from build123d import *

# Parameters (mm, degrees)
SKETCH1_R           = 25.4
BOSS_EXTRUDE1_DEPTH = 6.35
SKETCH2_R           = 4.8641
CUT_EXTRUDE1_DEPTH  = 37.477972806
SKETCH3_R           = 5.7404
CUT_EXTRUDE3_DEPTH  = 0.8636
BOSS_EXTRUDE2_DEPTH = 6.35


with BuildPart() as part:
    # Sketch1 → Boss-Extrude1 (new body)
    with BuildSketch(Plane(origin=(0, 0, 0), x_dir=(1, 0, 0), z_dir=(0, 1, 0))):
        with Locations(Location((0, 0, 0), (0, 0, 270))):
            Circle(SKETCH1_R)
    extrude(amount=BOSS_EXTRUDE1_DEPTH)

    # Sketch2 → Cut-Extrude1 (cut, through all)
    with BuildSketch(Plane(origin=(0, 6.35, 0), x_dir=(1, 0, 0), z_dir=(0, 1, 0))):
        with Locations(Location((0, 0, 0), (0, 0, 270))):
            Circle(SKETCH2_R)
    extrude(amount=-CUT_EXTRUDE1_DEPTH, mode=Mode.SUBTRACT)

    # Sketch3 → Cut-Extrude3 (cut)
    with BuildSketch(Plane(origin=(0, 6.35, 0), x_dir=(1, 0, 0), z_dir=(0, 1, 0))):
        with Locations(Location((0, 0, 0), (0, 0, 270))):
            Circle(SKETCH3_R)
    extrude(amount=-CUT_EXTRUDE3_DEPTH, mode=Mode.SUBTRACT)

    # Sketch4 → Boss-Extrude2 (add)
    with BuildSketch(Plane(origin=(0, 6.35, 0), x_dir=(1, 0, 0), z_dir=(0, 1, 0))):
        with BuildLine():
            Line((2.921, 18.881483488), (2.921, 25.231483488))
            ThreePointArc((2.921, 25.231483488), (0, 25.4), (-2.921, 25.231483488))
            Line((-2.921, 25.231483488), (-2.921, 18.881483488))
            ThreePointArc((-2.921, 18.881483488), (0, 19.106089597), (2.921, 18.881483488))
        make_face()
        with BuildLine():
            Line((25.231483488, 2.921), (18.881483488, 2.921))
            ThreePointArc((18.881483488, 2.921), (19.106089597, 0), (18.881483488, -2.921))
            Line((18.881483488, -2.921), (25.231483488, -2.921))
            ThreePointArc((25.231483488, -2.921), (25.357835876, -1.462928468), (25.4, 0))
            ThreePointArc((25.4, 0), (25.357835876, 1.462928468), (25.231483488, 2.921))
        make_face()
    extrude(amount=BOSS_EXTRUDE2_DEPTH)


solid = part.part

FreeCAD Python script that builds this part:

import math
import FreeCAD as App
import Part
import Sketcher

V = App.Vector
Q = App.Units.Quantity

doc = App.newDocument("Part")
body = doc.addObject("PartDesign::Body", "Body")

# Sketch on XZ plane
sketch1 = body.newObject("Sketcher::SketchObject", "Sketch")
sketch1.AttachmentSupport = (doc.getObject("XZ_Plane"), [""])
sketch1.MapMode = "FlatFace"
sketch1.addGeometry(Part.Circle(V(0, 0, 0), V(0, 0, 1), 25), False)
sketch1.addConstraint(Sketcher.Constraint("Coincident", 0, 3, -1, 1))
sketch1.addConstraint(Sketcher.Constraint("Diameter", 0, Q("2 in")))
pad1 = body.newObject("PartDesign::Pad", "Pad")
pad1.Profile = sketch1
pad1.Length = Q("0.25 in")
pad1.Reversed = True

# Sketch on XZ plane
sketch2 = body.newObject("Sketcher::SketchObject", "Sketch001")
sketch2.AttachmentSupport = (doc.getObject("XZ_Plane"), [""])
sketch2.MapMode = "FlatFace"
sketch2.AttachmentOffset = App.Placement(V(0, 0, -0.25 * 25.4), App.Rotation())
sketch2.addGeometry(Part.Circle(V(0, 0, 0), V(0, 0, 1), 4.9), False)
sketch2.addConstraint(Sketcher.Constraint("Coincident", 0, 3, -1, 1))
sketch2.addConstraint(Sketcher.Constraint("Diameter", 0, Q("0.383 in")))
pocket1 = body.newObject("PartDesign::Pocket", "Pocket")
pocket1.Profile = sketch2
pocket1.Type = "ThroughAll"
pocket1.Reversed = True

# Sketch on XZ plane
sketch3 = body.newObject("Sketcher::SketchObject", "Sketch002")
sketch3.AttachmentSupport = (doc.getObject("XZ_Plane"), [""])
sketch3.MapMode = "FlatFace"
sketch3.AttachmentOffset = App.Placement(V(0, 0, -0.25 * 25.4), App.Rotation())
sketch3.addGeometry(Part.Circle(V(0, 0, 0), V(0, 0, 1), 6), False)
sketch3.addConstraint(Sketcher.Constraint("Coincident", 0, 3, -1, 1))
sketch3.addConstraint(Sketcher.Constraint("Diameter", 0, Q("0.452 in")))
pocket2 = body.newObject("PartDesign::Pocket", "Pocket001")
pocket2.Profile = sketch3
pocket2.Length = Q("0.034 in")
pocket2.Reversed = True

# Sketch on XZ plane
sketch4 = body.newObject("Sketcher::SketchObject", "Sketch003")
sketch4.AttachmentSupport = (doc.getObject("XZ_Plane"), [""])
sketch4.MapMode = "FlatFace"
sketch4.AttachmentOffset = App.Placement(V(0, 0, -0.25 * 25.4), App.Rotation())
sketch4.addGeometry(Part.LineSegment(V(2.9, -18.9, 0), V(2.9, -25.2, 0)), False)
sketch4.addGeometry(Part.ArcOfCircle(Part.Circle(V(0, 0, 0), V(0, 0, 1), 25.4), math.radians(-96.6), math.radians(-83.4)), False)
sketch4.addGeometry(Part.LineSegment(V(-2.9, -25.2, 0), V(-2.9, -18.9, 0)), False)
sketch4.addGeometry(Part.ArcOfCircle(Part.Circle(V(0, 0, 0), V(0, 0, 1), 19.1), math.radians(-98.79), math.radians(-81.21)), False)
sketch4.addGeometry(Part.LineSegment(V(25.2, -2.9, 0), V(18.9, -2.9, 0)), False)
sketch4.addGeometry(Part.ArcOfCircle(Part.Circle(V(0, 0, 0), V(0, 0, 1), 19.1), math.radians(-8.79), math.radians(8.79)), False)
sketch4.addGeometry(Part.LineSegment(V(18.9, 2.9, 0), V(25.2, 2.9, 0)), False)
sketch4.addGeometry(Part.ArcOfCircle(Part.Circle(V(0, 0, 0), V(0, 0, 1), 25.4), math.radians(0), math.radians(6.6)), False)
sketch4.addGeometry(Part.ArcOfCircle(Part.Circle(V(0, 0, 0), V(0, 0, 1), 25.4), math.radians(-6.6), math.radians(0)), False)
sketch4.addConstraint(Sketcher.Constraint("Coincident", 0, 2, 1, 2))
sketch4.addConstraint(Sketcher.Constraint("Coincident", 1, 1, 2, 1))
sketch4.addConstraint(Sketcher.Constraint("Coincident", 2, 2, 3, 1))
sketch4.addConstraint(Sketcher.Constraint("Coincident", 3, 2, 0, 1))
sketch4.addConstraint(Sketcher.Constraint("Coincident", 4, 2, 5, 1))
sketch4.addConstraint(Sketcher.Constraint("Coincident", 5, 2, 6, 1))
sketch4.addConstraint(Sketcher.Constraint("Coincident", 6, 2, 7, 2))
sketch4.addConstraint(Sketcher.Constraint("Tangent", 7, 1, 8, 2))
sketch4.addConstraint(Sketcher.Constraint("Coincident", 8, 1, 4, 1))
sketch4.addConstraint(Sketcher.Constraint("Vertical", 0))
sketch4.addConstraint(Sketcher.Constraint("Vertical", 2))
sketch4.addConstraint(Sketcher.Constraint("Horizontal", 4))
sketch4.addConstraint(Sketcher.Constraint("Horizontal", 6))
sketch4.addConstraint(Sketcher.Constraint("Coincident", 1, 3, -1, 1))
sketch4.addConstraint(Sketcher.Constraint("Coincident", 3, 3, -1, 1))
sketch4.addConstraint(Sketcher.Constraint("Coincident", 5, 3, -1, 1))
sketch4.addConstraint(Sketcher.Constraint("Coincident", 7, 3, -1, 1))
sketch4.addConstraint(Sketcher.Constraint("Equal", 3, 5))
sketch4.addConstraint(Sketcher.Constraint("Equal", 1, 7))
sketch4.addConstraint(Sketcher.Constraint("Equal", 7, 8))
sketch4.addConstraint(Sketcher.Constraint("PointOnObject", 7, 1, -1))
sketch4.addConstraint(Sketcher.Constraint("Horizontal", 0, 2, 1, 1))
sketch4.addConstraint(Sketcher.Constraint("Vertical", 4, 2, 5, 2))
sketch4.addConstraint(Sketcher.Constraint("Equal", 6, 0))
sketch4.addConstraint(Sketcher.Constraint("Radius", 1, Q("1 in")))
sketch4.addConstraint(Sketcher.Constraint("DistanceX", 4, 2, 4, 1, Q("0.25 in")))
sketch4.addConstraint(Sketcher.Constraint("DistanceX", 1, 1, 0, 2, Q("0.23 in")))
pad2 = body.newObject("PartDesign::Pad", "Pad001")
pad2.Profile = sketch4
pad2.Length = Q("0.25 in")
pad2.Reversed = True

doc.recompute()
